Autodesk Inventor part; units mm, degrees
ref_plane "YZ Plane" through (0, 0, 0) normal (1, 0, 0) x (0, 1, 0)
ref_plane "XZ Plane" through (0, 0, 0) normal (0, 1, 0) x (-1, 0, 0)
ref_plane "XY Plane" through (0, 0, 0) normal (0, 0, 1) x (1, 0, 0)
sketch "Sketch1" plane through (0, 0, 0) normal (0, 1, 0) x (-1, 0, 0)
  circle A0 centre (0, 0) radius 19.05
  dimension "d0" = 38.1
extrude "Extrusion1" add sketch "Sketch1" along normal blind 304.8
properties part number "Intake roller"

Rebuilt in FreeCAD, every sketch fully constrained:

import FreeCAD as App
import Part
import Sketcher
Q = App.Units.Quantity

doc = App.newDocument("Part")
body = doc.addObject("PartDesign::Body", "Body")

# Sketch on XZ plane
sketch1 = doc.addObject("Sketcher::SketchObject", "Sketch")
body.addObject(sketch1)
sketch1.AttachmentSupport = (doc.XZ_Plane, [""])
sketch1.MapMode = "FlatFace"
sketch1.addGeometry(Part.Circle(App.Vector(0, 0, 0), App.Vector(0, 0, 1), 19), False)
sketch1.addConstraint(Sketcher.Constraint("Coincident", 0, 3, -1, 1))
sketch1.addConstraint(Sketcher.Constraint("Diameter", 0, Q("1.5 in")))
pad1 = doc.addObject("PartDesign::Pad", "Pad")
body.addObject(pad1)
pad1.Profile = sketch1
pad1.Length = Q("12 in")
pad1.Reversed = True

doc.recompute()
